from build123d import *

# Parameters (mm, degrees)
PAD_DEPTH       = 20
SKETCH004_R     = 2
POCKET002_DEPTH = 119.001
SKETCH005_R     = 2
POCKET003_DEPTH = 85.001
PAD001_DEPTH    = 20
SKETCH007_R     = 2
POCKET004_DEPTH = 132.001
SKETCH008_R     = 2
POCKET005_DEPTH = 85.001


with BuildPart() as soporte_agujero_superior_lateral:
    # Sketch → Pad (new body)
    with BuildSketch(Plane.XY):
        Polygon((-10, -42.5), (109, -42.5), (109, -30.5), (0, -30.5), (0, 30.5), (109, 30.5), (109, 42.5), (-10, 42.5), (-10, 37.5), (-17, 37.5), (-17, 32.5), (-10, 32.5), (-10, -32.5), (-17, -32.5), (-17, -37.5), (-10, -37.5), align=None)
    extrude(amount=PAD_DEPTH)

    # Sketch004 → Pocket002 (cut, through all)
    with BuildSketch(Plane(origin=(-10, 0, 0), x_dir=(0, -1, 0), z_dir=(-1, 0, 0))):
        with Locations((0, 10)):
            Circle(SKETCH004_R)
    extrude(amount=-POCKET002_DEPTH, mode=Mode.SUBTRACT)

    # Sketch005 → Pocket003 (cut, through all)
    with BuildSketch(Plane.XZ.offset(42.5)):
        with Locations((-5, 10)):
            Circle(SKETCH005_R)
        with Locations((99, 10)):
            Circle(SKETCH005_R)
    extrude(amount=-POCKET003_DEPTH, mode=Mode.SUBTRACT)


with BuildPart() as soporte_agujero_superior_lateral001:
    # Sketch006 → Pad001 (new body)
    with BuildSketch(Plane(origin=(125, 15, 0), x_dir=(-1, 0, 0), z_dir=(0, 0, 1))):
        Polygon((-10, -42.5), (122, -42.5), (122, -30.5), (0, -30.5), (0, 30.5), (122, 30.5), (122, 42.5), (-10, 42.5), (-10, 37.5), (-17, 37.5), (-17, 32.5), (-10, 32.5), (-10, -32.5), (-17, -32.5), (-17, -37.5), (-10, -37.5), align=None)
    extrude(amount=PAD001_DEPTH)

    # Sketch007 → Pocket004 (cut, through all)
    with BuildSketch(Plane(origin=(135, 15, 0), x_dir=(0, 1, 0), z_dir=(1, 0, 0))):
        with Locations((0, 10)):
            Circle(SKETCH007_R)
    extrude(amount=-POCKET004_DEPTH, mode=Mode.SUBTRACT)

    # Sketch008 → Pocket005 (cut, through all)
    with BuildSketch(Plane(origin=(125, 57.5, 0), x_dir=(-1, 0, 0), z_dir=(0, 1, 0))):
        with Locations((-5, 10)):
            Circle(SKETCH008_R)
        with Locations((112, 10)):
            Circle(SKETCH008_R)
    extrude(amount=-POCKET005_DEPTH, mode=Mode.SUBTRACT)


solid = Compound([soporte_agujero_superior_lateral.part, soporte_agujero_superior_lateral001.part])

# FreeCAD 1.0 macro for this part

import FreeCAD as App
import Part
import Sketcher
from FreeCAD import Vector
Q = App.Units.Quantity

doc = App.newDocument("Part")
body = doc.addObject("PartDesign::Body", "Body")

sketch1 = doc.addObject("Sketcher::SketchObject", "Sketch")
body.addObject(sketch1)
sketch1.AttachmentSupport = (doc.XY_Plane, [""])
sketch1.MapMode = "FlatFace"
sketch1.addGeometry(Part.LineSegment(Vector(-10, -42.5, 0), Vector(109, -42.5, 0)), False)
sketch1.addGeometry(Part.LineSegment(Vector(109, -42.5, 0), Vector(109, -30.5, 0)), False)
sketch1.addGeometry(Part.LineSegment(Vector(109, -30.5, 0), Vector(0, -30.5, 0)), False)
sketch1.addGeometry(Part.LineSegment(Vector(0, -30.5, 0), Vector(0, 30.5, 0)), False)
sketch1.addGeometry(Part.LineSegment(Vector(0, 30.5, 0), Vector(109, 30.5, 0)), False)
sketch1.addGeometry(Part.LineSegment(Vector(109, 30.5, 0), Vector(109, 42.5, 0)), False)
sketch1.addGeometry(Part.LineSegment(Vector(109, 42.5, 0), Vector(-10, 42.5, 0)), False)
sketch1.addGeometry(Part.LineSegment(Vector(-10, 42.5, 0), Vector(-10, 37.5, 0)), False)
sketch1.addGeometry(Part.LineSegment(Vector(-10, 37.5, 0), Vector(-17, 37.5, 0)), False)
sketch1.addGeometry(Part.LineSegment(Vector(-17, 37.5, 0), Vector(-17, 32.5, 0)), False)
sketch1.addGeometry(Part.LineSegment(Vector(-17, 32.5, 0), Vector(-10, 32.5, 0)), False)
sketch1.addGeometry(Part.LineSegment(Vector(-10, 32.5, 0), Vector(-10, -32.5, 0)), False)
sketch1.addGeometry(Part.LineSegment(Vector(-10, -32.5, 0), Vector(-17, -32.5, 0)), False)
sketch1.addGeometry(Part.LineSegment(Vector(-17, -32.5, 0), Vector(-17, -37.5, 0)), False)
sketch1.addGeometry(Part.LineSegment(Vector(-17, -37.5, 0), Vector(-10, -37.5, 0)), False)
sketch1.addGeometry(Part.LineSegment(Vector(-10, -37.5, 0), Vector(-10, -42.5, 0)), False)
sketch1.addConstraint(Sketcher.Constraint("Coincident", 0, 2, 1, 1))
sketch1.addConstraint(Sketcher.Constraint("Coincident", 1, 2, 2, 1))
sketch1.addConstraint(Sketcher.Constraint("Coincident", 2, 2, 3, 1))
sketch1.addConstraint(Sketcher.Constraint("Coincident", 3, 2, 4, 1))
sketch1.addConstraint(Sketcher.Constraint("Coincident", 4, 2, 5, 1))
sketch1.addConstraint(Sketcher.Constraint("Coincident", 5, 2, 6, 1))
sketch1.addConstraint(Sketcher.Constraint("Coincident", 6, 2, 7, 1))
sketch1.addConstraint(Sketcher.Constraint("Coincident", 7, 2, 8, 1))
sketch1.addConstraint(Sketcher.Constraint("Coincident", 8, 2, 9, 1))
sketch1.addConstraint(Sketcher.Constraint("Coincident", 9, 2, 10, 1))
sketch1.addConstraint(Sketcher.Constraint("Coincident", 10, 2, 11, 1))
sketch1.addConstraint(Sketcher.Constraint("Coincident", 11, 2, 12, 1))
sketch1.addConstraint(Sketcher.Constraint("Coincident", 12, 2, 13, 1))
sketch1.addConstraint(Sketcher.Constraint("Coincident", 13, 2, 14, 1))
sketch1.addConstraint(Sketcher.Constraint("Coincident", 14, 2, 15, 1))
sketch1.addConstraint(Sketcher.Constraint("Coincident", 15, 2, 0, 1))
sketch1.addConstraint(Sketcher.Constraint("Horizontal", 0))
sketch1.addConstraint(Sketcher.Constraint("Vertical", 1))
sketch1.addConstraint(Sketcher.Constraint("Horizontal", 2))
sketch1.addConstraint(Sketcher.Constraint("Vertical", 3))
sketch1.addConstraint(Sketcher.Constraint("Horizontal", 4))
sketch1.addConstraint(Sketcher.Constraint("Vertical", 5))
sketch1.addConstraint(Sketcher.Constraint("Horizontal", 6))
sketch1.addConstraint(Sketcher.Constraint("Vertical", 7))
sketch1.addConstraint(Sketcher.Constraint("Horizontal", 8))
sketch1.addConstraint(Sketcher.Constraint("Vertical", 9))
sketch1.addConstraint(Sketcher.Constraint("Horizontal", 10))
sketch1.addConstraint(Sketcher.Constraint("Vertical", 11))
sketch1.addConstraint(Sketcher.Constraint("Horizontal", 12))
sketch1.addConstraint(Sketcher.Constraint("Vertical", 13))
sketch1.addConstraint(Sketcher.Constraint("Horizontal", 14))
sketch1.addConstraint(Sketcher.Constraint("Vertical", 15))
sketch1.addConstraint(Sketcher.Constraint("Symmetric", 2, 2, 3, 2, -1, 1))
sketch1.addConstraint(Sketcher.Constraint("Symmetric", 0, 2, 5, 2, -1))
sketch1.addConstraint(Sketcher.Constraint("Symmetric", 9, 2, 12, 2, -1))
sketch1.addConstraint(Sketcher.Constraint("Symmetric", 7, 2, 14, 2, -1))
sketch1.addConstraint(Sketcher.Constraint("Vertical", 7, 2, 10, 2))
sketch1.addConstraint(Sketcher.Constraint("Equal", 7, 9))
sketch1.addConstraint(Sketcher.Constraint("DistanceX", 0, 1, 0, 2, Q("119 mm")))
sketch1.addConstraint(Sketcher.Constraint("DistanceX", 2, 2, 2, 1, Q("109 mm")))
sketch1.addConstraint(Sketcher.Constraint("DistanceX", 8, 2, 8, 1, Q("7 mm")))
sketch1.addConstraint(Sketcher.Constraint("DistanceY", 1, 1, 1, 2, Q("12 mm")))
sketch1.addConstraint(Sketcher.Constraint("DistanceY", 3, 1, 3, 2, Q("61 mm")))
sketch1.addConstraint(Sketcher.Constraint("DistanceY", 7, 2, 7, 1, Q("5 mm")))
pad1 = doc.addObject("PartDesign::Pad", "Pad")
body.addObject(pad1)
pad1.Profile = sketch1
pad1.Length = 20

sketch2 = doc.addObject("Sketcher::SketchObject", "Sketch001")
body.addObject(sketch2)
sketch2.AttachmentSupport = (doc.YZ_Plane, [""])
sketch2.MapMode = "FlatFace"
sketch2.AttachmentOffset = App.Placement(Vector(0, 0, -10), App.Rotation())
sketch2.addGeometry(Part.Circle(Vector(0, 10, 0), Vector(0, 0, 1), 2), False)
sketch2.addConstraint(Sketcher.Constraint("PointOnObject", 0, 3, -2))
sketch2.addConstraint(Sketcher.Constraint("Diameter", 0, Q("4 mm")))
sketch2.addConstraint(Sketcher.Constraint("DistanceY", -1, 1, 0, 3, Q("10 mm")))
pocket1 = doc.addObject("PartDesign::Pocket", "Pocket")
body.addObject(pocket1)
pocket1.Profile = sketch2
pocket1.Type = "ThroughAll"
pocket1.Reversed = True

sketch3 = doc.addObject("Sketcher::SketchObject", "Sketch002")
body.addObject(sketch3)
sketch3.AttachmentSupport = (doc.XZ_Plane, [""])
sketch3.MapMode = "FlatFace"
sketch3.AttachmentOffset = App.Placement(Vector(0, 0, 42.5), App.Rotation())
sketch3.addGeometry(Part.Circle(Vector(-5, 10, 0), Vector(0, 0, 1), 2), False)
sketch3.addGeometry(Part.Circle(Vector(99, 10, 0), Vector(0, 0, 1), 2), False)
sketch3.addConstraint(Sketcher.Constraint("Equal", 0, 1))
sketch3.addConstraint(Sketcher.Constraint("Horizontal", 0, 3, 1, 3))
sketch3.addConstraint(Sketcher.Constraint("Diameter", 0, Q("4 mm")))
sketch3.addConstraint(Sketcher.Constraint("DistanceX", 0, 3, -1, 1, Q("5 mm")))
sketch3.addConstraint(Sketcher.Constraint("DistanceY", -1, 1, 0, 3, Q("10 mm")))
sketch3.addConstraint(Sketcher.Constraint("DistanceX", -1, 1, 1, 3, Q("99 mm")))
pocket2 = doc.addObject("PartDesign::Pocket", "Pocket001")
body.addObject(pocket2)
pocket2.Profile = sketch3
pocket2.Type = "ThroughAll"
body2 = doc.addObject("PartDesign::Body", "Body001")

sketch4 = doc.addObject("Sketcher::SketchObject", "Sketch003")
body2.addObject(sketch4)
sketch4.AttachmentSupport = (doc.getObject("XY_Plane001"), [""])
sketch4.MapMode = "FlatFace"
sketch4.addGeometry(Part.LineSegment(Vector(135, 57.5, 0), Vector(3, 57.5, 0)), False)
sketch4.addGeometry(Part.LineSegment(Vector(3, 57.5, 0), Vector(3, 45.5, 0)), False)
sketch4.addGeometry(Part.LineSegment(Vector(3, 45.5, 0), Vector(125, 45.5, 0)), False)
sketch4.addGeometry(Part.LineSegment(Vector(125, 45.5, 0), Vector(125, -15.5, 0)), False)
sketch4.addGeometry(Part.LineSegment(Vector(125, -15.5, 0), Vector(3, -15.5, 0)), False)
sketch4.addGeometry(Part.LineSegment(Vector(3, -15.5, 0), Vector(3, -27.5, 0)), False)
sketch4.addGeometry(Part.LineSegment(Vector(3, -27.5, 0), Vector(135, -27.5, 0)), False)
sketch4.addGeometry(Part.LineSegment(Vector(135, -27.5, 0), Vector(135, -22.5, 0)), False)
sketch4.addGeometry(Part.LineSegment(Vector(135, -22.5, 0), Vector(142, -22.5, 0)), False)
sketch4.addGeometry(Part.LineSegment(Vector(142, -22.5, 0), Vector(142, -17.5, 0)), False)
sketch4.addGeometry(Part.LineSegment(Vector(142, -17.5, 0), Vector(135, -17.5, 0)), False)
sketch4.addGeometry(Part.LineSegment(Vector(135, -17.5, 0), Vector(135, 47.5, 0)), False)
sketch4.addGeometry(Part.LineSegment(Vector(135, 47.5, 0), Vector(142, 47.5, 0)), False)
sketch4.addGeometry(Part.LineSegment(Vector(142, 47.5, 0), Vector(142, 52.5, 0)), False)
sketch4.addGeometry(Part.LineSegment(Vector(142, 52.5, 0), Vector(135, 52.5, 0)), False)
sketch4.addGeometry(Part.LineSegment(Vector(135, 52.5, 0), Vector(135, 57.5, 0)), False)
sketch4.addConstraint(Sketcher.Constraint("Coincident", 0, 2, 1, 1))
sketch4.addConstraint(Sketcher.Constraint("Coincident", 1, 2, 2, 1))
sketch4.addConstraint(Sketcher.Constraint("Coincident", 2, 2, 3, 1))
sketch4.addConstraint(Sketcher.Constraint("Coincident", 3, 2, 4, 1))
sketch4.addConstraint(Sketcher.Constraint("Coincident", 4, 2, 5, 1))
sketch4.addConstraint(Sketcher.Constraint("Coincident", 5, 2, 6, 1))
sketch4.addConstraint(Sketcher.Constraint("Coincident", 6, 2, 7, 1))
sketch4.addConstraint(Sketcher.Constraint("Coincident", 7, 2, 8, 1))
sketch4.addConstraint(Sketcher.Constraint("Coincident", 8, 2, 9, 1))
sketch4.addConstraint(Sketcher.Constraint("Coincident", 9, 2, 10, 1))
sketch4.addConstraint(Sketcher.Constraint("Coincident", 10, 2, 11, 1))
sketch4.addConstraint(Sketcher.Constraint("Coincident", 11, 2, 12, 1))
sketch4.addConstraint(Sketcher.Constraint("Coincident", 12, 2, 13, 1))
sketch4.addConstraint(Sketcher.Constraint("Coincident", 13, 2, 14, 1))
sketch4.addConstraint(Sketcher.Constraint("Coincident", 14, 2, 15, 1))
sketch4.addConstraint(Sketcher.Constraint("Coincident", 15, 2, 0, 1))
sketch4.addConstraint(Sketcher.Constraint("Horizontal", 0))
sketch4.addConstraint(Sketcher.Constraint("Vertical", 1))
sketch4.addConstraint(Sketcher.Constraint("Horizontal", 2))
sketch4.addConstraint(Sketcher.Constraint("Vertical", 3))
sketch4.addConstraint(Sketcher.Constraint("Horizontal", 4))
sketch4.addConstraint(Sketcher.Constraint("Vertical", 5))
sketch4.addConstraint(Sketcher.Constraint("Horizontal", 6))
sketch4.addConstraint(Sketcher.Constraint("Vertical", 7))
sketch4.addConstraint(Sketcher.Constraint("Horizontal", 8))
sketch4.addConstraint(Sketcher.Constraint("Vertical", 9))
sketch4.addConstraint(Sketcher.Constraint("Horizontal", 10))
sketch4.addConstraint(Sketcher.Constraint("Vertical", 11))
sketch4.addConstraint(Sketcher.Constraint("Horizontal", 12))
sketch4.addConstraint(Sketcher.Constraint("Vertical", 13))
sketch4.addConstraint(Sketcher.Constraint("Horizontal", 14))
sketch4.addConstraint(Sketcher.Constraint("Vertical", 15))
sketch4.addConstraint(Sketcher.Constraint("Vertical", 1, 2, 4, 2))
sketch4.addConstraint(Sketcher.Constraint("Vertical", 7, 2, 10, 2))
sketch4.addConstraint(Sketcher.Constraint("Vertical", 9, 2, 12, 2))
sketch4.addConstraint(Sketcher.Constraint("Vertical", 11, 2, 14, 2))
sketch4.addConstraint(Sketcher.Constraint("Equal", 1, 5))
sketch4.addConstraint(Sketcher.Constraint("Equal", 7, 9))
sketch4.addConstraint(Sketcher.Constraint("Equal", 9, 13))
sketch4.addConstraint(Sketcher.Constraint("Equal", 13, 15))
sketch4.addConstraint(Sketcher.Constraint("DistanceX", 0, 2, 0, 1, Q("132 mm")))
sketch4.addConstraint(Sketcher.Constraint("DistanceX", 2, 1, 2, 2, Q("122 mm")))
sketch4.addConstraint(Sketcher.Constraint("DistanceX", 8, 1, 8, 2, Q("7 mm")))
sketch4.addConstraint(Sketcher.Constraint("DistanceY", 1, 2, 1, 1, Q("12 mm")))
sketch4.addConstraint(Sketcher.Constraint("DistanceY", 3, 2, 3, 1, Q("61 mm")))
sketch4.addConstraint(Sketcher.Constraint("DistanceY", 7, 1, 7, 2, Q("5 mm")))
sketch4.addConstraint(Sketcher.Constraint("DistanceX", -1, 1, 0, 2, Q("3 mm")))
sketch4.addConstraint(Sketcher.Constraint("DistanceY", -1, 1, 0, 2, Q("57.5 mm")))
pad2 = doc.addObject("PartDesign::Pad", "Pad001")
body2.addObject(pad2)
pad2.Profile = sketch4
pad2.Length = 20

sketch5 = doc.addObject("Sketcher::SketchObject", "Sketch004")
body2.addObject(sketch5)
sketch5.AttachmentSupport = (doc.getObject("YZ_Plane001"), [""])
sketch5.MapMode = "FlatFace"
sketch5.AttachmentOffset = App.Placement(Vector(0, 0, 135), App.Rotation())
sketch5.addGeometry(Part.Circle(Vector(15, 10, 0), Vector(0, 0, 1), 2), False)
sketch5.addConstraint(Sketcher.Constraint("Diameter", 0, Q("4 mm")))
sketch5.addConstraint(Sketcher.Constraint("DistanceX", -1, 1, 0, 3, Q("15 mm")))
sketch5.addConstraint(Sketcher.Constraint("DistanceY", -1, 1, 0, 3, Q("10 mm")))
pocket3 = doc.addObject("PartDesign::Pocket", "Pocket002")
body2.addObject(pocket3)
pocket3.Profile = sketch5
pocket3.Type = "ThroughAll"

sketch6 = doc.addObject("Sketcher::SketchObject", "Sketch005")
body2.addObject(sketch6)
sketch6.AttachmentSupport = (doc.getObject("XZ_Plane001"), [""])
sketch6.MapMode = "FlatFace"
sketch6.AttachmentOffset = App.Placement(Vector(0, 0, -57.5), App.Rotation())
sketch6.addGeometry(Part.Circle(Vector(130, 10, 0), Vector(0, 0, 1), 2), False)
sketch6.addGeometry(Part.Circle(Vector(13, 10, 0), Vector(0, 0, 1), 2), False)
sketch6.addConstraint(Sketcher.Constraint("Equal", 0, 1))
sketch6.addConstraint(Sketcher.Constraint("Horizontal", 0, 3, 1, 3))
sketch6.addConstraint(Sketcher.Constraint("Diameter", 0, Q("4 mm")))
sketch6.addConstraint(Sketcher.Constraint("DistanceX", -1, 1, 0, 3, Q("130 mm")))
sketch6.addConstraint(Sketcher.Constraint("DistanceY", -1, 1, 0, 3, Q("10 mm")))
sketch6.addConstraint(Sketcher.Constraint("DistanceX", -1, 1, 1, 3, Q("13 mm")))
pocket4 = doc.addObject("PartDesign::Pocket", "Pocket003")
body2.addObject(pocket4)
pocket4.Profile = sketch6
pocket4.Type = "ThroughAll"
pocket4.Reversed = True

doc.recompute()
